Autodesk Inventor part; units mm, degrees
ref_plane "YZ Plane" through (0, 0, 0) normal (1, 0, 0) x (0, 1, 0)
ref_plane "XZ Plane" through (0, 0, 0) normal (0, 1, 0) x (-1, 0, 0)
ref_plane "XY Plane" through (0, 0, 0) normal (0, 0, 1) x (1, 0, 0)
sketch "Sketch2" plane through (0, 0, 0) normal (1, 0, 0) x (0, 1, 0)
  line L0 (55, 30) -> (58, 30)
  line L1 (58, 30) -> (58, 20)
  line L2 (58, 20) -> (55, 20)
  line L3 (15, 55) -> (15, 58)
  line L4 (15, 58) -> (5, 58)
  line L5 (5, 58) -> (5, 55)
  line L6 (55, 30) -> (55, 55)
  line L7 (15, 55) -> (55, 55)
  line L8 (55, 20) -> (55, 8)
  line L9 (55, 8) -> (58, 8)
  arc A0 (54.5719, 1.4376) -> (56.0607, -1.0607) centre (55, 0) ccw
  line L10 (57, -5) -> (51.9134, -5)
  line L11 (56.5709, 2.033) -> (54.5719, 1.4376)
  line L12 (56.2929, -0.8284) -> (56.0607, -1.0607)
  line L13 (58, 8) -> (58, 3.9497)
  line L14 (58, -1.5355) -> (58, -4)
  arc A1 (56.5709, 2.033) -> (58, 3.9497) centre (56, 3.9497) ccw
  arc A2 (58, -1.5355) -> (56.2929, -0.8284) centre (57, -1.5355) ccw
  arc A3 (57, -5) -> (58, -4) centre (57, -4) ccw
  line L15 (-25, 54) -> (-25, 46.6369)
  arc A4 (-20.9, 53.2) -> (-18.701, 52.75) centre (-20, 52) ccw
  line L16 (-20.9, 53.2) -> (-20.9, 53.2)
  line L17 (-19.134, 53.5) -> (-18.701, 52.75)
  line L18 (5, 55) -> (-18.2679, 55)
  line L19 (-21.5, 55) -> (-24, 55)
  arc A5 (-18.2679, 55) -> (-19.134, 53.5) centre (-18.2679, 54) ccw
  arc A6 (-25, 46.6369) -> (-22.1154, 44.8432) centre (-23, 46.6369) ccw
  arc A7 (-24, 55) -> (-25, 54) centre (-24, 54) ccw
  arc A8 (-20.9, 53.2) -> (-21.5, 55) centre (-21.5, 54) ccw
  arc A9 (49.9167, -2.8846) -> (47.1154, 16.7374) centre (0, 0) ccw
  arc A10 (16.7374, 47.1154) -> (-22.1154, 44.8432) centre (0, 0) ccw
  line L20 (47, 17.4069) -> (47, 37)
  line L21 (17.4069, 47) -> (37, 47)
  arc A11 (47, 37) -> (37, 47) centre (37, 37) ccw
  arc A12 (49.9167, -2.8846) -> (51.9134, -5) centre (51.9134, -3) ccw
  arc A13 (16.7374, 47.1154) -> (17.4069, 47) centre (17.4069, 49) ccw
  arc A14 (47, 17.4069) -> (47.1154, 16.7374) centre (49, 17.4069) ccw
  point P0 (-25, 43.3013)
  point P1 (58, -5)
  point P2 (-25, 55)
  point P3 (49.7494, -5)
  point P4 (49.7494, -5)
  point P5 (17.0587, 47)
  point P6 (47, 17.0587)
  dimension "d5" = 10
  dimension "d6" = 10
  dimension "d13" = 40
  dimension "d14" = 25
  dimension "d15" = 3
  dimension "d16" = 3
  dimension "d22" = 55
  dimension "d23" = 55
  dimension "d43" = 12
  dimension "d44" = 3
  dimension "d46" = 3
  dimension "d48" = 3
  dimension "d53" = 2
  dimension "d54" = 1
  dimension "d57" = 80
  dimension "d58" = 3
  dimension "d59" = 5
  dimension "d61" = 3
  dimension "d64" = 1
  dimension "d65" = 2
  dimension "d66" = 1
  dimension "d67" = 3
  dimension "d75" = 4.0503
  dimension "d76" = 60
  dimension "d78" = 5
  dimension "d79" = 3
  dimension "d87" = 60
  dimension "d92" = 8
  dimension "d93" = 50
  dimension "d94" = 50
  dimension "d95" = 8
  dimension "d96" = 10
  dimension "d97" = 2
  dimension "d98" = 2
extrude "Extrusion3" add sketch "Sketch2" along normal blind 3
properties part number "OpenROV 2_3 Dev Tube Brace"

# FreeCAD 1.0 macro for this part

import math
import FreeCAD as App
import Part
import Sketcher
Q = App.Units.Quantity

doc = App.newDocument("Part")
body = doc.addObject("PartDesign::Body", "Body")

# Sketch on YZ plane
sketch1 = body.newObject("Sketcher::SketchObject", "Sketch")
sketch1.AttachmentSupport = (doc.getObject("YZ_Plane"), [""])
sketch1.MapMode = "FlatFace"
sketch1.addGeometry([
    Part.LineSegment(App.Vector(58, 30, 0), App.Vector(55, 30, 0)),  # 0
    Part.LineSegment(App.Vector(55, 30, 0), App.Vector(55, 55, 0)),  # 1
    Part.LineSegment(App.Vector(55, 55, 0), App.Vector(15, 55, 0)),  # 2
    Part.LineSegment(App.Vector(15, 55, 0), App.Vector(15, 58, 0)),  # 3
    Part.LineSegment(App.Vector(15, 58, 0), App.Vector(5, 58, 0)),  # 4
    Part.LineSegment(App.Vector(5, 58, 0), App.Vector(5, 55, 0)),  # 5
    Part.LineSegment(App.Vector(5, 55, 0), App.Vector(-18.27, 55, 0)),  # 6
    Part.ArcOfCircle(Part.Circle(App.Vector(-18.27, 54, 0), App.Vector(0, 0, 1), 1), math.radians(90), math.radians(210)),  # 7
    Part.LineSegment(App.Vector(-19.13, 53.5, 0), App.Vector(-18.7, 52.75, 0)),  # 8
    Part.ArcOfCircle(Part.Circle(App.Vector(-20, 52, 0), App.Vector(0, 0, 1), 1.5), math.radians(127), math.radians(390)),  # 9
    Part.ArcOfCircle(Part.Circle(App.Vector(-21.5, 54, 0), App.Vector(0, 0, 1), 1), math.radians(-53), math.radians(90)),  # 10
    Part.LineSegment(App.Vector(-21.5, 55, 0), App.Vector(-24, 55, 0)),  # 11
    Part.ArcOfCircle(Part.Circle(App.Vector(-24, 54, 0), App.Vector(0, 0, 1), 1), math.radians(90), math.radians(180)),  # 12
    Part.LineSegment(App.Vector(-25, 54, 0), App.Vector(-25, 46.64, 0)),  # 13
    Part.ArcOfCircle(Part.Circle(App.Vector(-23, 46.64, 0), App.Vector(0, 0, 1), 2), math.radians(180), math.radians(296)),  # 14
    Part.ArcOfCircle(Part.Circle(App.Vector(0, 0, 0), App.Vector(0, 0, 1), 50), math.radians(70), math.radians(116)),  # 15
    Part.ArcOfCircle(Part.Circle(App.Vector(17.41, 49, 0), App.Vector(0, 0, 1), 2), math.radians(-109.56), math.radians(-90)),  # 16
    Part.LineSegment(App.Vector(17.41, 47, 0), App.Vector(37, 47, 0)),  # 17
    Part.ArcOfCircle(Part.Circle(App.Vector(37, 37, 0), App.Vector(0, 0, 1), 10), math.radians(0), math.radians(90)),  # 18
    Part.LineSegment(App.Vector(47, 37, 0), App.Vector(47, 17.41, 0)),  # 19
    Part.ArcOfCircle(Part.Circle(App.Vector(49, 17.41, 0), App.Vector(0, 0, 1), 2), math.radians(180), math.radians(199.56)),  # 20
    Part.ArcOfCircle(Part.Circle(App.Vector(0, 0, 0), App.Vector(0, 0, 1), 50), math.radians(-3), math.radians(20)),  # 21
    Part.ArcOfCircle(Part.Circle(App.Vector(51.91, -3, 0), App.Vector(0, 0, 1), 2), math.radians(177), math.radians(270)),  # 22
    Part.LineSegment(App.Vector(51.91, -5, 0), App.Vector(57, -5, 0)),  # 23
    Part.ArcOfCircle(Part.Circle(App.Vector(57, -4, 0), App.Vector(0, 0, 1), 1), math.radians(-90), math.radians(0)),  # 24
    Part.LineSegment(App.Vector(58, -4, 0), App.Vector(58, -1.54, 0)),  # 25
    Part.ArcOfCircle(Part.Circle(App.Vector(57, -1.54, 0), App.Vector(0, 0, 1), 1), math.radians(0), math.radians(135)),  # 26
    Part.LineSegment(App.Vector(56.29, -0.83, 0), App.Vector(56.06, -1.06, 0)),  # 27
    Part.ArcOfCircle(Part.Circle(App.Vector(55, 0, 0), App.Vector(0, 0, 1), 1.5), math.radians(107), math.radians(315)),  # 28
    Part.LineSegment(App.Vector(54.57, 1.44, 0), App.Vector(56.57, 2.03, 0)),  # 29
    Part.ArcOfCircle(Part.Circle(App.Vector(56, 3.95, 0), App.Vector(0, 0, 1), 2), math.radians(-73), math.radians(0)),  # 30
    Part.LineSegment(App.Vector(58, 3.95, 0), App.Vector(58, 8, 0)),  # 31
    Part.LineSegment(App.Vector(58, 8, 0), App.Vector(55, 8, 0)),  # 32
    Part.LineSegment(App.Vector(55, 8, 0), App.Vector(55, 20, 0)),  # 33
    Part.LineSegment(App.Vector(55, 20, 0), App.Vector(58, 20, 0)),  # 34
    Part.LineSegment(App.Vector(58, 20, 0), App.Vector(58, 30, 0)),  # 35
], False)
sketch1.addConstraint([
    Sketcher.Constraint("Coincident", 0, 2, 1, 1),
    Sketcher.Constraint("Coincident", 1, 2, 2, 1),
    Sketcher.Constraint("Coincident", 2, 2, 3, 1),
    Sketcher.Constraint("Coincident", 3, 2, 4, 1),
    Sketcher.Constraint("Coincident", 4, 2, 5, 1),
    Sketcher.Constraint("Coincident", 5, 2, 6, 1),
    Sketcher.Constraint("Tangent", 6, 2, 7, 1),
    Sketcher.Constraint("Tangent", 7, 2, 8, 1),
    Sketcher.Constraint("Tangent", 8, 2, 9, 2),
    Sketcher.Constraint("Tangent", 9, 1, 10, 1),
    Sketcher.Constraint("Tangent", 10, 2, 11, 1),
    Sketcher.Constraint("Tangent", 11, 2, 12, 1),
    Sketcher.Constraint("Tangent", 12, 2, 13, 1),
    Sketcher.Constraint("Tangent", 13, 2, 14, 1),
    Sketcher.Constraint("Tangent", 14, 2, 15, 2),
    Sketcher.Constraint("Tangent", 15, 1, 16, 1),
    Sketcher.Constraint("Tangent", 16, 2, 17, 1),
    Sketcher.Constraint("Tangent", 17, 2, 18, 2),
    Sketcher.Constraint("Tangent", 18, 1, 19, 1),
    Sketcher.Constraint("Tangent", 19, 2, 20, 1),
    Sketcher.Constraint("Tangent", 20, 2, 21, 2),
    Sketcher.Constraint("Tangent", 21, 1, 22, 1),
    Sketcher.Constraint("Tangent", 22, 2, 23, 1),
    Sketcher.Constraint("Tangent", 23, 2, 24, 1),
    Sketcher.Constraint("Tangent", 24, 2, 25, 1),
    Sketcher.Constraint("Tangent", 25, 2, 26, 1),
    Sketcher.Constraint("Tangent", 26, 2, 27, 1),
    Sketcher.Constraint("Tangent", 27, 2, 28, 2),
    Sketcher.Constraint("Tangent", 28, 1, 29, 1),
    Sketcher.Constraint("Tangent", 29, 2, 30, 1),
    Sketcher.Constraint("Tangent", 30, 2, 31, 1),
    Sketcher.Constraint("Coincident", 31, 2, 32, 1),
    Sketcher.Constraint("Coincident", 32, 2, 33, 1),
    Sketcher.Constraint("Coincident", 33, 2, 34, 1),
    Sketcher.Constraint("Coincident", 34, 2, 35, 1),
    Sketcher.Constraint("Coincident", 35, 2, 0, 1),
    Sketcher.Constraint("Horizontal", 0),
    Sketcher.Constraint("Vertical", 1),
    Sketcher.Constraint("Horizontal", 2),
    Sketcher.Constraint("Vertical", 3),
    Sketcher.Constraint("Horizontal", 4),
    Sketcher.Constraint("Vertical", 5),
    Sketcher.Constraint("Horizontal", 6),
    Sketcher.Constraint("Horizontal", 11),
    Sketcher.Constraint("Vertical", 13),
    Sketcher.Constraint("Horizontal", 17),
    Sketcher.Constraint("Vertical", 19),
    Sketcher.Constraint("Horizontal", 23),
    Sketcher.Constraint("Vertical", 25),
    Sketcher.Constraint("Vertical", 31),
    Sketcher.Constraint("Horizontal", 32),
    Sketcher.Constraint("Vertical", 33),
    Sketcher.Constraint("Horizontal", 34),
    Sketcher.Constraint("Vertical", 35),
    Sketcher.Constraint("Coincident", 15, 3, -1, 1),
    Sketcher.Constraint("Coincident", 21, 3, -1, 1),
    Sketcher.Constraint("Equal", 7, 10),
    Sketcher.Constraint("Equal", 10, 12),
    Sketcher.Constraint("Equal", 14, 16),
    Sketcher.Constraint("Equal", 16, 20),
    Sketcher.Constraint("Equal", 15, 21),
    Sketcher.Constraint("Equal", 20, 22),
    Sketcher.Constraint("Equal", 12, 24),
    Sketcher.Constraint("Equal", 24, 26),
    Sketcher.Constraint("Equal", 9, 28),
    Sketcher.Constraint("Equal", 22, 30),
    Sketcher.Constraint("PointOnObject", 28, 3, -1),
    Sketcher.Constraint("Horizontal", 7, 3, 10, 3),
    Sketcher.Constraint("Horizontal", 2, 2, 5, 2),
    Sketcher.Constraint("Vertical", 28, 3, 0, 2),
    Sketcher.Constraint("Vertical", 25, 2, 30, 2),
    Sketcher.Constraint("Vertical", 1, 2, 32, 2),
    Sketcher.Constraint("Vertical", 31, 2, 34, 2),
    Sketcher.Constraint("Equal", 34, 3),
    Sketcher.Constraint("Equal", 17, 19),
    Sketcher.Constraint("Equal", 4, 35),
    Sketcher.Constraint("Radius", 7, Q("1 mm")),
    Sketcher.Constraint("Radius", 14, Q("2 mm")),
    Sketcher.Constraint("Radius", 15, Q("50 mm")),
    Sketcher.Constraint("Radius", 18, Q("10 mm")),
    Sketcher.Constraint("Radius", 9, Q("1.5 mm")),
    Sketcher.Constraint("DistanceX", 0, 2, 0, 1, Q("3 mm")),
    Sketcher.Constraint("DistanceX", 2, 2, 2, 1, Q("40 mm")),
    Sketcher.Constraint("DistanceX", 4, 2, 4, 1, Q("10 mm")),
    Sketcher.Constraint("DistanceY", 1, 1, 1, 2, Q("25 mm")),
    Sketcher.Constraint("DistanceY", 33, 1, 33, 2, Q("12 mm")),
    Sketcher.Constraint("DistanceY", 22, 3, -1, 1, Q("3 mm")),
    Sketcher.Constraint("DistanceX", -1, 1, 28, 3, Q("55 mm")),
    Sketcher.Constraint("DistanceY", -1, 1, 1, 2, Q("55 mm")),
    Sketcher.Constraint("DistanceX", 12, 2, -1, 1, Q("25 mm")),
    Sketcher.Constraint("DistanceY", 9, 3, 7, 3, Q("2 mm")),
    Sketcher.Constraint("DistanceX", 14, 3, 9, 3, Q("3 mm")),
    Sketcher.Constraint("DistanceY", 16, 3, 7, 3, Q("5 mm")),
    Sketcher.Constraint("Angle", 8, Q("-60.0007 deg")),
    Sketcher.Constraint("DistanceY", 31, 1, 31, 2, Q("4.0503 mm")),
    Sketcher.Constraint("DistanceY", 25, 1, 25, 2, Q("2.4645 mm")),
])
pad1 = body.newObject("PartDesign::Pad", "Pad")
pad1.Profile = sketch1
pad1.Length = 3

doc.recompute()
